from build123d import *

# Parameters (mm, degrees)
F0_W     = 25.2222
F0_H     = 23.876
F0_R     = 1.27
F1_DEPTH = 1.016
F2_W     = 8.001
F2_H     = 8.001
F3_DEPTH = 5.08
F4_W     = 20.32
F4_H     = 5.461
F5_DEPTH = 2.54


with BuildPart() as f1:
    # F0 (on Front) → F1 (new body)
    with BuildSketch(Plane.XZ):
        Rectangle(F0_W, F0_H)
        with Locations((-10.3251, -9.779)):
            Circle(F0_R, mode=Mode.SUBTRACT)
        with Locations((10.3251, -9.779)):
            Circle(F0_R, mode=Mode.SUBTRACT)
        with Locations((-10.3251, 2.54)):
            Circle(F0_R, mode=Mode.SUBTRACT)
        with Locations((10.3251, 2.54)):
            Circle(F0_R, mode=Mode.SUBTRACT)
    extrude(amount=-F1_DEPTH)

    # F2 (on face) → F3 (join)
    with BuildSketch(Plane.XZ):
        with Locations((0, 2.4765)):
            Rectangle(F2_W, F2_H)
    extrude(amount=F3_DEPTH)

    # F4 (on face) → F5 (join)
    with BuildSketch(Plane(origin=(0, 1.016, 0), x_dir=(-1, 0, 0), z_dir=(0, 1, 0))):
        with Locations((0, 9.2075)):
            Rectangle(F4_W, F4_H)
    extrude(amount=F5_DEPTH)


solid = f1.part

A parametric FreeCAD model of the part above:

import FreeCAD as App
import Part
import Sketcher
from FreeCAD import Vector
Q = App.Units.Quantity


def add_polygon(sketch, points):
    """Adds a closed chain of lines whose ends are joined by coincident constraints."""
    first, n = sketch.GeometryCount, len(points)
    for a, b in zip(points, points[1:] + points[:1]):
        sketch.addGeometry(Part.LineSegment(App.Vector(*a, 0), App.Vector(*b, 0)), False)
    for i in range(n):
        sketch.addConstraint(Sketcher.Constraint("Coincident", first + i, 2, first + (i + 1) % n, 1))

doc = App.newDocument("Part")
body = doc.addObject("PartDesign::Body", "Body")

sketch1 = doc.addObject("Sketcher::SketchObject", "Sketch")
body.addObject(sketch1)
sketch1.AttachmentSupport = (doc.XZ_Plane, [""])
sketch1.MapMode = "FlatFace"
add_polygon(sketch1, [(-12.6, 11.9), (-12.6, -11.9), (12.6, -11.9), (12.6, 11.9)])
sketch1.addGeometry(Part.Circle(Vector(-10.3, -9.8, 0), Vector(0, 0, 1), 1.3), False)
sketch1.addGeometry(Part.Circle(Vector(10.3, -9.8, 0), Vector(0, 0, 1), 1.3), False)
sketch1.addGeometry(Part.Circle(Vector(-10.3, 2.5, 0), Vector(0, 0, 1), 1.3), False)
sketch1.addGeometry(Part.Circle(Vector(10.3, 2.5, 0), Vector(0, 0, 1), 1.3), False)
sketch1.addConstraint(Sketcher.Constraint("Vertical", 0))
sketch1.addConstraint(Sketcher.Constraint("Horizontal", 1))
sketch1.addConstraint(Sketcher.Constraint("Vertical", 2))
sketch1.addConstraint(Sketcher.Constraint("Horizontal", 3))
sketch1.addConstraint(Sketcher.Constraint("Equal", 4, 5))
sketch1.addConstraint(Sketcher.Constraint("Equal", 5, 6))
sketch1.addConstraint(Sketcher.Constraint("Equal", 6, 7))
sketch1.addConstraint(Sketcher.Constraint("Symmetric", 0, 2, 2, 2, -1, 1))
sketch1.addConstraint(Sketcher.Constraint("Symmetric", 4, 3, 5, 3, -2))
sketch1.addConstraint(Sketcher.Constraint("Symmetric", 6, 3, 7, 3, -2))
sketch1.addConstraint(Sketcher.Constraint("Vertical", 4, 3, 6, 3))
sketch1.addConstraint(Sketcher.Constraint("Diameter", 4, Q("0.1 in")))
sketch1.addConstraint(Sketcher.Constraint("DistanceY", 0, 2, 0, 1, Q("0.94 in")))
sketch1.addConstraint(Sketcher.Constraint("DistanceY", -1, 1, 6, 3, Q("0.1 in")))
sketch1.addConstraint(Sketcher.Constraint("DistanceX", 1, 1, 1, 2, Q("0.993 in")))
sketch1.addConstraint(Sketcher.Constraint("DistanceX", 0, 2, 4, 3, Q("0.09 in")))
sketch1.addConstraint(Sketcher.Constraint("DistanceY", 4, 3, -1, 1, Q("0.385 in")))
pad1 = doc.addObject("PartDesign::Pad", "Pad")
body.addObject(pad1)
pad1.Profile = sketch1
pad1.Length = Q("0.04 in")
pad1.Reversed = True

sketch2 = doc.addObject("Sketcher::SketchObject", "Sketch001")
body.addObject(sketch2)
sketch2.AttachmentSupport = (doc.XZ_Plane, [""])
sketch2.MapMode = "FlatFace"
add_polygon(sketch2, [(-4, 6), (-4, -2), (4, -2), (4, 6)])
sketch2.addConstraint(Sketcher.Constraint("Vertical", 0))
sketch2.addConstraint(Sketcher.Constraint("Horizontal", 1))
sketch2.addConstraint(Sketcher.Constraint("Vertical", 2))
sketch2.addConstraint(Sketcher.Constraint("Horizontal", 3))
sketch2.addConstraint(Sketcher.Constraint("Equal", 3, 0))
sketch2.addConstraint(Sketcher.Constraint("DistanceX", 1, 1, 1, 2, Q("0.315 in")))
sketch2.addConstraint(Sketcher.Constraint("DistanceY", 0, 2, -1, 1, Q("0.06 in")))
sketch2.addConstraint(Sketcher.Constraint("DistanceX", 0, 2, -1, 1, Q("0.1575 in")))
pad2 = doc.addObject("PartDesign::Pad", "Pad001")
body.addObject(pad2)
pad2.Profile = sketch2
pad2.Length = Q("0.2 in")

sketch3 = doc.addObject("Sketcher::SketchObject", "Sketch002")
body.addObject(sketch3)
sketch3.AttachmentSupport = (doc.XZ_Plane, [""])
sketch3.MapMode = "FlatFace"
sketch3.AttachmentOffset = App.Placement(Vector(0, 0, -0.04 * 25.4), App.Rotation())
add_polygon(sketch3, [(10, 12), (10, 6), (-10, 6), (-10, 12)])
sketch3.addConstraint(Sketcher.Constraint("Vertical", 0))
sketch3.addConstraint(Sketcher.Constraint("Horizontal", 1))
sketch3.addConstraint(Sketcher.Constraint("Vertical", 2))
sketch3.addConstraint(Sketcher.Constraint("Horizontal", 3))
sketch3.addConstraint(Sketcher.Constraint("DistanceX", 1, 2, 1, 1, Q("0.8 in")))
sketch3.addConstraint(Sketcher.Constraint("DistanceX", -1, 1, 0, 2, Q("0.4 in")))
sketch3.addConstraint(Sketcher.Constraint("DistanceY", 0, 2, 0, 1, Q("0.215 in")))
sketch3.addConstraint(Sketcher.Constraint("DistanceY", -1, 1, 2, 2, Q("0.47 in")))
pad3 = doc.addObject("PartDesign::Pad", "Pad002")
body.addObject(pad3)
pad3.Profile = sketch3
pad3.Length = Q("0.1 in")
pad3.Reversed = True

doc.recompute()
